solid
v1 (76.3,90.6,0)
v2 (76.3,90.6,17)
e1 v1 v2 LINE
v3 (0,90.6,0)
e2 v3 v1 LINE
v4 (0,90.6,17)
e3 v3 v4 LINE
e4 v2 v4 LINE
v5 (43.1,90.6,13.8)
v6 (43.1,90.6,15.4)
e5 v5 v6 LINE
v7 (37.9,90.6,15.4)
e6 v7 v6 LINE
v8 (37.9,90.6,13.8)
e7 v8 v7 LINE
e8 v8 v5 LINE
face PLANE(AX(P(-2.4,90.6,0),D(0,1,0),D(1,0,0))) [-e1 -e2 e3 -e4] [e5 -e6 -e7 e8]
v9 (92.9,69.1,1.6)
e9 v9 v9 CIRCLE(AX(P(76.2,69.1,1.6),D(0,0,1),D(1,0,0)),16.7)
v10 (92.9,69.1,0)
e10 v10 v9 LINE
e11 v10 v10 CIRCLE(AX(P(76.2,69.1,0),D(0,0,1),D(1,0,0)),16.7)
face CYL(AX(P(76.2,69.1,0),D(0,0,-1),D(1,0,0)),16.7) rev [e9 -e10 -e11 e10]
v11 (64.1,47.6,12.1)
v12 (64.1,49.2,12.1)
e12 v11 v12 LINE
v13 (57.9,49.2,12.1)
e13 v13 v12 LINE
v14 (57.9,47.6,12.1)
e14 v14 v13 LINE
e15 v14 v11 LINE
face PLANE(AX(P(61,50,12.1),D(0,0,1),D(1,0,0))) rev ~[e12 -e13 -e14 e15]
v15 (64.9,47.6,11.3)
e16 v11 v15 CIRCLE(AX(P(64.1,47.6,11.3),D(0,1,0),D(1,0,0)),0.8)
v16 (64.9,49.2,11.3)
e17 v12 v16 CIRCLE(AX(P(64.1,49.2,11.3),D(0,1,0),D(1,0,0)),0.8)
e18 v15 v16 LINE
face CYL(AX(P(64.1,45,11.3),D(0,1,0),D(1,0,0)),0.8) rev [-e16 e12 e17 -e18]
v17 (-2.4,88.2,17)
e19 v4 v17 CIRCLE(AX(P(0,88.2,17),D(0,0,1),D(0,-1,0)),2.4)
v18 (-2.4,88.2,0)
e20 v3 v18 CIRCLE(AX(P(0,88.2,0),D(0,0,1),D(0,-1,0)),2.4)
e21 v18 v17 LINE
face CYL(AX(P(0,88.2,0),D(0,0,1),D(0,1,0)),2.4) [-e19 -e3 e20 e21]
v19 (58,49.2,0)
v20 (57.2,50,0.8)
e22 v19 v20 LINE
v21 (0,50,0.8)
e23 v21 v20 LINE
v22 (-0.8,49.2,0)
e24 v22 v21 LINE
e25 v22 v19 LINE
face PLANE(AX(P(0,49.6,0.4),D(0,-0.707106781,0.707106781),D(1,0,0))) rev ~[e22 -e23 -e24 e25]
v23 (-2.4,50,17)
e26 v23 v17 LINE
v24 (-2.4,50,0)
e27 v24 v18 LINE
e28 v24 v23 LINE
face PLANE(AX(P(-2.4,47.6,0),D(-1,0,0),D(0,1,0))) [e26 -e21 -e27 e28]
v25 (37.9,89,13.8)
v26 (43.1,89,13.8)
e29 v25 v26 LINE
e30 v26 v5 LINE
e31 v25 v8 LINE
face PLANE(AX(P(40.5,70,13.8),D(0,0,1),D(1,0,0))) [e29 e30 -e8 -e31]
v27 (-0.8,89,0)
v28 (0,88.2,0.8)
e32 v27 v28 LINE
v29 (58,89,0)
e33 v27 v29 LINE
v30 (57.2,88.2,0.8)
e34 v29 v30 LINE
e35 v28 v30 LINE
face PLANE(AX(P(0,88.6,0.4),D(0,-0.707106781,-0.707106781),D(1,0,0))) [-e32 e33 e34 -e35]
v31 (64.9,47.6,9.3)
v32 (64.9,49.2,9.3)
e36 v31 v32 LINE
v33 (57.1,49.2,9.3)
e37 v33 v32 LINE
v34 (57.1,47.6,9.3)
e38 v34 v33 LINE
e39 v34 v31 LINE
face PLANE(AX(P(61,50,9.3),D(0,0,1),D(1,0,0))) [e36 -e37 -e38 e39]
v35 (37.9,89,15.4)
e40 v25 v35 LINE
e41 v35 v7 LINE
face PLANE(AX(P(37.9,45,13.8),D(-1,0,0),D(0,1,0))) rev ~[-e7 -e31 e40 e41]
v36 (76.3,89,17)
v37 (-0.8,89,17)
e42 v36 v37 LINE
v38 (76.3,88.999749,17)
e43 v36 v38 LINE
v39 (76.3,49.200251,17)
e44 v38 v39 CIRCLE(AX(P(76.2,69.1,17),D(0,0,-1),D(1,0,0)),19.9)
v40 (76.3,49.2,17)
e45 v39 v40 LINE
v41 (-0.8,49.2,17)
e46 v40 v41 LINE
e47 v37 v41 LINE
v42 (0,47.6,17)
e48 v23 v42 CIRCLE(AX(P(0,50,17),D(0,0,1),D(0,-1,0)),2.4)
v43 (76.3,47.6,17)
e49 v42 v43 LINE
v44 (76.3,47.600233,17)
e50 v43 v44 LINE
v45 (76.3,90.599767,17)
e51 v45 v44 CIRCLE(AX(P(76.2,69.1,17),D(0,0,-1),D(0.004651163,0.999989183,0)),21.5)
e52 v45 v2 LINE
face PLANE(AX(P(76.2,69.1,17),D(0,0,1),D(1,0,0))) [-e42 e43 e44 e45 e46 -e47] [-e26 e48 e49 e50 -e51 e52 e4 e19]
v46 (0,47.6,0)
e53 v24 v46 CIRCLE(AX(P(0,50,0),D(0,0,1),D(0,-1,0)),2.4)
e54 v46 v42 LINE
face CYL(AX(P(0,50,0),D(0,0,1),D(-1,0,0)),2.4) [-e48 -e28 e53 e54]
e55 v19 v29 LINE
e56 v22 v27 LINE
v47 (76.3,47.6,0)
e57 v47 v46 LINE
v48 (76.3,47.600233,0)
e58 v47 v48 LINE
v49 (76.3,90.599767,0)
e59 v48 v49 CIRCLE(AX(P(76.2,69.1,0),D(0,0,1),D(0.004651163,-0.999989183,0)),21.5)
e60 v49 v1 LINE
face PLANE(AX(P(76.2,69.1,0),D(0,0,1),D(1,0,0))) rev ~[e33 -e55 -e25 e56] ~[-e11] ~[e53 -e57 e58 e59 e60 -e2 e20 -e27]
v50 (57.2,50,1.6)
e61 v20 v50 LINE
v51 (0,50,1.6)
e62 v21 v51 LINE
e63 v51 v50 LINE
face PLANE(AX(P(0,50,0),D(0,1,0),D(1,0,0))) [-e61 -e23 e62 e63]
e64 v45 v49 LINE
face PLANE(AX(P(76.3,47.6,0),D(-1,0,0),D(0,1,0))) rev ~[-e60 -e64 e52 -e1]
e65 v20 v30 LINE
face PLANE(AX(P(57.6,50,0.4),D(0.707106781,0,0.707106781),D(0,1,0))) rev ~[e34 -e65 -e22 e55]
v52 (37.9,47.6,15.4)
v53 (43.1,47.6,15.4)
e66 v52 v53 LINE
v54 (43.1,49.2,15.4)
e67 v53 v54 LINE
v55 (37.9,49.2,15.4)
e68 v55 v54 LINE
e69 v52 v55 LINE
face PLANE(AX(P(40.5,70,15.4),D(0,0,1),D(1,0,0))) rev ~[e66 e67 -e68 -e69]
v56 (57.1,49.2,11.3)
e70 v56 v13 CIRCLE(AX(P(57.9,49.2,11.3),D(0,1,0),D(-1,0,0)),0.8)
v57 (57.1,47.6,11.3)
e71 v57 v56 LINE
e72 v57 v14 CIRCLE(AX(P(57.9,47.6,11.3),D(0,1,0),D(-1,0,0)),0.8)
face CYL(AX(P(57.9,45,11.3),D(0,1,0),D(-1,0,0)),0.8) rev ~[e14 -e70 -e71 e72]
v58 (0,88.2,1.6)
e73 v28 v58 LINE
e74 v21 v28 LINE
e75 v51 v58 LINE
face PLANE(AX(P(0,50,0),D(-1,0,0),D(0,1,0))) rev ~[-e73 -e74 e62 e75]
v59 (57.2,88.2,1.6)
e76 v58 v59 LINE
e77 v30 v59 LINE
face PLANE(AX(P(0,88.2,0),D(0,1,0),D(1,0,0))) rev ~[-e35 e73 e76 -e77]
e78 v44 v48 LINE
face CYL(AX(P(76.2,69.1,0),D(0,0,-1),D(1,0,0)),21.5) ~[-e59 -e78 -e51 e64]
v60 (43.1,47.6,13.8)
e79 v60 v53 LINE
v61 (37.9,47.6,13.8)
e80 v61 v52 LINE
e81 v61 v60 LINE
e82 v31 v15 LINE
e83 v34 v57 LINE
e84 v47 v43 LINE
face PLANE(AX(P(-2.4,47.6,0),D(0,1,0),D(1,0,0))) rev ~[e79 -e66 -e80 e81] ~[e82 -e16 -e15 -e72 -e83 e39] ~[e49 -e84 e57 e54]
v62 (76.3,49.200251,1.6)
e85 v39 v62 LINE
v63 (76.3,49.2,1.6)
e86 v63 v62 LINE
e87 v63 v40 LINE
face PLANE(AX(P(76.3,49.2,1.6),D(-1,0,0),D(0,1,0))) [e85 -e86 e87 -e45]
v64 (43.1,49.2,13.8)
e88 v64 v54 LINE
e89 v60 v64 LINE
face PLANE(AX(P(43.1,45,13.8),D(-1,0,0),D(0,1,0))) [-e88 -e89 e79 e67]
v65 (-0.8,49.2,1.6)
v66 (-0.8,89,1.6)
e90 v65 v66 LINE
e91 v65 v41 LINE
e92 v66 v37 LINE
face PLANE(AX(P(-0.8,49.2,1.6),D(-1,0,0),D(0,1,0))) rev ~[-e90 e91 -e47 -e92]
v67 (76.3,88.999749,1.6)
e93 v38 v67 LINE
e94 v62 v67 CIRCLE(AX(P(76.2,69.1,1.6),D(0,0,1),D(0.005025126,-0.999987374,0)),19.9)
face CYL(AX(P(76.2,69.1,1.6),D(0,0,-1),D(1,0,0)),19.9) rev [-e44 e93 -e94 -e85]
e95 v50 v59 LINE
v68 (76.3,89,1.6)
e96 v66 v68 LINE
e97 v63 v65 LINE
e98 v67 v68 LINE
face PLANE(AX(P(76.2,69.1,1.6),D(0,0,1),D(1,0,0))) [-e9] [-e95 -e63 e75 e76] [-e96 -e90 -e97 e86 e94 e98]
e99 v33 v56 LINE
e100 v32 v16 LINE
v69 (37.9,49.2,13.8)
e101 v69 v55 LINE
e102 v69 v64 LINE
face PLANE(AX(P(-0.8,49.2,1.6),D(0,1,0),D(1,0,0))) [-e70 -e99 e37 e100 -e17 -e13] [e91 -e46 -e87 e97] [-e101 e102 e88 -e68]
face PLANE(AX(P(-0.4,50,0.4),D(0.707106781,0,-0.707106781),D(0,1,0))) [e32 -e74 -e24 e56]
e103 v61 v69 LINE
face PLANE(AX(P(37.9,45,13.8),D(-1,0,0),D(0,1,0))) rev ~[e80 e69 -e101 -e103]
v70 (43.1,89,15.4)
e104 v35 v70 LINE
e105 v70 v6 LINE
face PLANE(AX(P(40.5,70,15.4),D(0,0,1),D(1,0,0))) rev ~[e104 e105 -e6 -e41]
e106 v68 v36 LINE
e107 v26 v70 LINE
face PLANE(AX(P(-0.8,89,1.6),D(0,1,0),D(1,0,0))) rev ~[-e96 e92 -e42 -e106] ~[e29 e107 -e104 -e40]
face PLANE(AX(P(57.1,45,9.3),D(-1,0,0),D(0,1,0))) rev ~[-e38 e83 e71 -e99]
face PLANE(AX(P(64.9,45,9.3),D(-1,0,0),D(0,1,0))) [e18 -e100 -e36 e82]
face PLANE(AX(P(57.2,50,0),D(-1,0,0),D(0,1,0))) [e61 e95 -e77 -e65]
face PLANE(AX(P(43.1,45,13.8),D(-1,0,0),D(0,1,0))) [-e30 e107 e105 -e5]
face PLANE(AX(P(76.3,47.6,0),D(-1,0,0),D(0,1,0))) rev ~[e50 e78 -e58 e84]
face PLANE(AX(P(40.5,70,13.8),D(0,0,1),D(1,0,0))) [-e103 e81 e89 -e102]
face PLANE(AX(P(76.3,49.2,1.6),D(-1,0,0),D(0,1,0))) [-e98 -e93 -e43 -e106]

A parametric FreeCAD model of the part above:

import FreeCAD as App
import Part
import Sketcher
Q = App.Units.Quantity


def edges_at(feature, points):
    """Names of the edges that pass closest to the given points."""
    edges = feature.Shape.Edges
    near = lambda p: min(range(len(edges)), key=lambda i: edges[i].distToShape(Part.Vertex(*p))[0])
    return sorted({f"Edge{near(p) + 1}" for p in points})


def add_polygon(sketch, points):
    """Adds a closed chain of lines whose ends are joined by coincident constraints."""
    first, n = sketch.GeometryCount, len(points)
    for a, b in zip(points, points[1:] + points[:1]):
        sketch.addGeometry(Part.LineSegment(App.Vector(*a, 0), App.Vector(*b, 0)), False)
    for i in range(n):
        sketch.addConstraint(Sketcher.Constraint("Coincident", first + i, 2, first + (i + 1) % n, 1))

doc = App.newDocument("Part")
body = doc.addObject("PartDesign::Body", "Body")

# Sketch on XY plane
sketch1 = doc.addObject("Sketcher::SketchObject", "Sketch")
body.addObject(sketch1)
sketch1.AttachmentSupport = (doc.XY_Plane, [""])
sketch1.MapMode = "FlatFace"
sketch1.AttachmentOffset = App.Placement(App.Vector(0, 0, 9.3), App.Rotation())
add_polygon(sketch1, [(57.1, 55), (57.1, 45), (64.9, 45), (64.9, 55)])  # lines 0-3
sketch1.addConstraint([
    Sketcher.Constraint("Vertical", 0),
    Sketcher.Constraint("Horizontal", 1),
    Sketcher.Constraint("Vertical", 2),
    Sketcher.Constraint("Horizontal", 3),
    Sketcher.Constraint("DistanceY", 0, 2, 0, 1, Q("10 mm")),
    Sketcher.Constraint("DistanceX", 1, 1, 1, 2, Q("7.8 mm")),
    Sketcher.Constraint("DistanceY", -1, 1, 0, 2, Q("45 mm")),
    Sketcher.Constraint("DistanceX", -1, 1, 0, 2, Q("57.1 mm")),
])
pad1 = doc.addObject("PartDesign::Pad", "Pad")
body.addObject(pad1)
pad1.Profile = sketch1
pad1.Length = 2.8
doc.recompute()

fillet = doc.addObject("PartDesign::Fillet", "Fillet")
body.addObject(fillet)
fillet.Base = (pad1, edges_at(pad1, [(57.1, 50, 12.1), (64.9, 50, 12.1)]))
fillet.Radius = 0.8
body2 = doc.addObject("PartDesign::Body", "Body001")

# Sketch on XY plane
sketch2 = doc.addObject("Sketcher::SketchObject", "Sketch001")
body2.addObject(sketch2)
sketch2.AttachmentSupport = (doc.getObject("XY_Plane001"), [""])
sketch2.MapMode = "FlatFace"
sketch2.AttachmentOffset = App.Placement(App.Vector(0, 0, 13.8), App.Rotation())
add_polygon(sketch2, [(37.9, 95), (37.9, 45), (43.1, 45), (43.1, 95)])  # lines 0-3
sketch2.addConstraint([
    Sketcher.Constraint("Vertical", 0),
    Sketcher.Constraint("Horizontal", 1),
    Sketcher.Constraint("Vertical", 2),
    Sketcher.Constraint("Horizontal", 3),
    Sketcher.Constraint("DistanceY", 0, 2, 0, 1, Q("50 mm")),
    Sketcher.Constraint("DistanceX", 1, 1, 1, 2, Q("5.2 mm")),
    Sketcher.Constraint("DistanceY", -1, 1, 0, 2, Q("45 mm")),
    Sketcher.Constraint("DistanceX", -1, 1, 0, 2, Q("37.9 mm")),
])
pad2 = doc.addObject("PartDesign::Pad", "Pad001")
body2.addObject(pad2)
pad2.Profile = sketch2
pad2.Length = 1.6
body3 = doc.addObject("PartDesign::Body", "Body002")

# Sketch on XY plane
sketch3 = doc.addObject("Sketcher::SketchObject", "Sketch002")
body3.addObject(sketch3)
sketch3.AttachmentSupport = (doc.getObject("XY_Plane002"), [""])
sketch3.MapMode = "FlatFace"
add_polygon(sketch3, [(0, 88.2), (0, 50), (57.2, 50), (57.2, 88.2)])  # lines 0-3
sketch3.addConstraint([
    Sketcher.Constraint("Vertical", 0),
    Sketcher.Constraint("Horizontal", 1),
    Sketcher.Constraint("Vertical", 2),
    Sketcher.Constraint("Horizontal", 3),
    Sketcher.Constraint("PointOnObject", 0, 2, -2),
    Sketcher.Constraint("DistanceX", 1, 1, 1, 2, Q("57.2 mm")),
    Sketcher.Constraint("DistanceY", 0, 2, 0, 1, Q("38.2 mm")),
    Sketcher.Constraint("DistanceY", -1, 1, 0, 2, Q("50 mm")),
])
pad3 = doc.addObject("PartDesign::Pad", "Pad002")
body3.addObject(pad3)
pad3.Profile = sketch3
pad3.Length = 1.6
body4 = doc.addObject("PartDesign::Body", "Body003")

# Sketch on XY plane
sketch4 = doc.addObject("Sketcher::SketchObject", "Sketch003")
body4.addObject(sketch4)
sketch4.AttachmentSupport = (doc.getObject("XY_Plane003"), [""])
sketch4.MapMode = "FlatFace"
sketch4.addGeometry(Part.Circle(App.Vector(76.2, 69.1, 0), App.Vector(0, 0, 1), 16.7), False)
sketch4.addConstraint([
    Sketcher.Constraint("Diameter", 0, Q("33.4 mm")),
    Sketcher.Constraint("DistanceX", -1, 1, 0, 3, Q("76.2 mm")),
    Sketcher.Constraint("DistanceY", -1, 1, 0, 3, Q("69.1 mm")),
])
pad4 = doc.addObject("PartDesign::Pad", "Pad003")
body4.addObject(pad4)
pad4.Profile = sketch4
pad4.Length = 1.6
body5 = doc.addObject("PartDesign::Body", "Body004")

# Sketch on XY plane
sketch5 = doc.addObject("Sketcher::SketchObject", "Sketch004")
body5.addObject(sketch5)
sketch5.AttachmentSupport = (doc.getObject("XY_Plane004"), [""])
sketch5.MapMode = "FlatFace"
sketch5.AttachmentOffset = App.Placement(App.Vector(0, 0, 1.6), App.Rotation())
sketch5.addGeometry(Part.Circle(App.Vector(76.2, 69.1, 0), App.Vector(0, 0, 1), 19.9), False)
sketch5.addConstraint([
    Sketcher.Constraint("Diameter", 0, Q("39.8 mm")),
    Sketcher.Constraint("DistanceX", -1, 1, 0, 3, Q("76.2 mm")),
    Sketcher.Constraint("DistanceY", -1, 1, 0, 3, Q("69.1 mm")),
])
pad5 = doc.addObject("PartDesign::Pad", "Pad004")
body5.addObject(pad5)
pad5.Profile = sketch5
pad5.Length = 17
body6 = doc.addObject("PartDesign::Body", "Body005")

# Sketch on XY plane
sketch6 = doc.addObject("Sketcher::SketchObject", "Sketch005")
body6.addObject(sketch6)
sketch6.AttachmentSupport = (doc.getObject("XY_Plane005"), [""])
sketch6.MapMode = "FlatFace"
sketch6.AttachmentOffset = App.Placement(App.Vector(0, 0, 1.6), App.Rotation())
add_polygon(sketch6, [(-0.8, 89), (-0.8, 49.2), (76.3, 49.2), (76.3, 89)])  # lines 0-3
sketch6.addConstraint([
    Sketcher.Constraint("Vertical", 0),
    Sketcher.Constraint("Horizontal", 1),
    Sketcher.Constraint("Vertical", 2),
    Sketcher.Constraint("Horizontal", 3),
    Sketcher.Constraint("DistanceX", 1, 1, 1, 2, Q("77.1 mm")),
    Sketcher.Constraint("DistanceY", 0, 2, 0, 1, Q("39.8 mm")),
    Sketcher.Constraint("DistanceY", -1, 1, 2, 2, Q("89 mm")),
    Sketcher.Constraint("DistanceX", 0, 2, -1, 1, Q("0.8 mm")),
])
pad6 = doc.addObject("PartDesign::Pad", "Pad005")
body6.addObject(pad6)
pad6.Profile = sketch6
pad6.Length = 17
doc.recompute()

boolean = doc.addObject("PartDesign::Boolean", "Boolean")
body6.addObject(boolean)
boolean.Type = "Fuse"
boolean.addObjects([body5])
body7 = doc.addObject("PartDesign::Body", "Body006")

# Sketch on XY plane
sketch7 = doc.addObject("Sketcher::SketchObject", "Sketch006")
body7.addObject(sketch7)
sketch7.AttachmentSupport = (doc.getObject("XY_Plane006"), [""])
sketch7.MapMode = "FlatFace"
sketch7.addGeometry(Part.Circle(App.Vector(76.2, 69.1, 0), App.Vector(0, 0, 1), 21.5), False)
sketch7.addConstraint([
    Sketcher.Constraint("Diameter", 0, Q("43 mm")),
    Sketcher.Constraint("DistanceX", -1, 1, 0, 3, Q("76.2 mm")),
    Sketcher.Constraint("DistanceY", -1, 1, 0, 3, Q("69.1 mm")),
])
pad7 = doc.addObject("PartDesign::Pad", "Pad006")
body7.addObject(pad7)
pad7.Profile = sketch7
pad7.Length = 17
body8 = doc.addObject("PartDesign::Body", "Body007")

# Sketch on XY plane
sketch8 = doc.addObject("Sketcher::SketchObject", "Sketch007")
body8.addObject(sketch8)
sketch8.AttachmentSupport = (doc.getObject("XY_Plane007"), [""])
sketch8.MapMode = "FlatFace"
add_polygon(sketch8, [(-2.4, 90.6), (-2.4, 47.6), (76.3, 47.6), (76.3, 90.6)])  # lines 0-3
sketch8.addConstraint([
    Sketcher.Constraint("Vertical", 0),
    Sketcher.Constraint("Horizontal", 1),
    Sketcher.Constraint("Vertical", 2),
    Sketcher.Constraint("Horizontal", 3),
    Sketcher.Constraint("DistanceY", 0, 2, 0, 1, Q("43 mm")),
    Sketcher.Constraint("DistanceX", 1, 1, 1, 2, Q("78.7 mm")),
    Sketcher.Constraint("DistanceX", 0, 2, -1, 1, Q("2.4 mm")),
    Sketcher.Constraint("DistanceY", -1, 1, 0, 2, Q("47.6 mm")),
])
pad8 = doc.addObject("PartDesign::Pad", "Pad007")
body8.addObject(pad8)
pad8.Profile = sketch8
pad8.Length = 17
doc.recompute()

boolean2 = doc.addObject("PartDesign::Boolean", "Boolean001")
body8.addObject(boolean2)
boolean2.Type = "Fuse"
boolean2.addObjects([body7])
doc.recompute()

boolean3 = doc.addObject("PartDesign::Boolean", "Boolean002")
body8.addObject(boolean3)
boolean3.Type = "Cut"
boolean3.addObjects([body6])
doc.recompute()

fillet2 = doc.addObject("PartDesign::Fillet", "Fillet001")
body8.addObject(fillet2)
fillet2.Base = (boolean3, edges_at(boolean3, [(-2.4, 47.6, 8.5), (-2.4, 90.6, 8.5)]))
fillet2.Radius = 2.4
doc.recompute()

boolean4 = doc.addObject("PartDesign::Boolean", "Boolean003")
body8.addObject(boolean4)
boolean4.Type = "Cut"
boolean4.addObjects([body4])
doc.recompute()

boolean5 = doc.addObject("PartDesign::Boolean", "Boolean004")
body8.addObject(boolean5)
boolean5.Type = "Cut"
boolean5.addObjects([body3])
doc.recompute()

chamfer = doc.addObject("PartDesign::Chamfer", "Chamfer")
body8.addObject(chamfer)
chamfer.Base = (boolean5, edges_at(boolean5, [
    (57.2, 69.1, 0),
    (28.6, 88.2, 0),
    (0, 69.1, 0),
    (28.6, 50, 0),
    (57.2, 69.1, 0),
    (57.2, 69.1, 0),
]))
chamfer.Size = 0.8
doc.recompute()

boolean6 = doc.addObject("PartDesign::Boolean", "Boolean005")
body8.addObject(boolean6)
boolean6.Type = "Cut"
boolean6.addObjects([body2])
doc.recompute()

boolean7 = doc.addObject("PartDesign::Boolean", "Boolean006")
body8.addObject(boolean7)
boolean7.Type = "Cut"
boolean7.addObjects([body])

doc.recompute()
